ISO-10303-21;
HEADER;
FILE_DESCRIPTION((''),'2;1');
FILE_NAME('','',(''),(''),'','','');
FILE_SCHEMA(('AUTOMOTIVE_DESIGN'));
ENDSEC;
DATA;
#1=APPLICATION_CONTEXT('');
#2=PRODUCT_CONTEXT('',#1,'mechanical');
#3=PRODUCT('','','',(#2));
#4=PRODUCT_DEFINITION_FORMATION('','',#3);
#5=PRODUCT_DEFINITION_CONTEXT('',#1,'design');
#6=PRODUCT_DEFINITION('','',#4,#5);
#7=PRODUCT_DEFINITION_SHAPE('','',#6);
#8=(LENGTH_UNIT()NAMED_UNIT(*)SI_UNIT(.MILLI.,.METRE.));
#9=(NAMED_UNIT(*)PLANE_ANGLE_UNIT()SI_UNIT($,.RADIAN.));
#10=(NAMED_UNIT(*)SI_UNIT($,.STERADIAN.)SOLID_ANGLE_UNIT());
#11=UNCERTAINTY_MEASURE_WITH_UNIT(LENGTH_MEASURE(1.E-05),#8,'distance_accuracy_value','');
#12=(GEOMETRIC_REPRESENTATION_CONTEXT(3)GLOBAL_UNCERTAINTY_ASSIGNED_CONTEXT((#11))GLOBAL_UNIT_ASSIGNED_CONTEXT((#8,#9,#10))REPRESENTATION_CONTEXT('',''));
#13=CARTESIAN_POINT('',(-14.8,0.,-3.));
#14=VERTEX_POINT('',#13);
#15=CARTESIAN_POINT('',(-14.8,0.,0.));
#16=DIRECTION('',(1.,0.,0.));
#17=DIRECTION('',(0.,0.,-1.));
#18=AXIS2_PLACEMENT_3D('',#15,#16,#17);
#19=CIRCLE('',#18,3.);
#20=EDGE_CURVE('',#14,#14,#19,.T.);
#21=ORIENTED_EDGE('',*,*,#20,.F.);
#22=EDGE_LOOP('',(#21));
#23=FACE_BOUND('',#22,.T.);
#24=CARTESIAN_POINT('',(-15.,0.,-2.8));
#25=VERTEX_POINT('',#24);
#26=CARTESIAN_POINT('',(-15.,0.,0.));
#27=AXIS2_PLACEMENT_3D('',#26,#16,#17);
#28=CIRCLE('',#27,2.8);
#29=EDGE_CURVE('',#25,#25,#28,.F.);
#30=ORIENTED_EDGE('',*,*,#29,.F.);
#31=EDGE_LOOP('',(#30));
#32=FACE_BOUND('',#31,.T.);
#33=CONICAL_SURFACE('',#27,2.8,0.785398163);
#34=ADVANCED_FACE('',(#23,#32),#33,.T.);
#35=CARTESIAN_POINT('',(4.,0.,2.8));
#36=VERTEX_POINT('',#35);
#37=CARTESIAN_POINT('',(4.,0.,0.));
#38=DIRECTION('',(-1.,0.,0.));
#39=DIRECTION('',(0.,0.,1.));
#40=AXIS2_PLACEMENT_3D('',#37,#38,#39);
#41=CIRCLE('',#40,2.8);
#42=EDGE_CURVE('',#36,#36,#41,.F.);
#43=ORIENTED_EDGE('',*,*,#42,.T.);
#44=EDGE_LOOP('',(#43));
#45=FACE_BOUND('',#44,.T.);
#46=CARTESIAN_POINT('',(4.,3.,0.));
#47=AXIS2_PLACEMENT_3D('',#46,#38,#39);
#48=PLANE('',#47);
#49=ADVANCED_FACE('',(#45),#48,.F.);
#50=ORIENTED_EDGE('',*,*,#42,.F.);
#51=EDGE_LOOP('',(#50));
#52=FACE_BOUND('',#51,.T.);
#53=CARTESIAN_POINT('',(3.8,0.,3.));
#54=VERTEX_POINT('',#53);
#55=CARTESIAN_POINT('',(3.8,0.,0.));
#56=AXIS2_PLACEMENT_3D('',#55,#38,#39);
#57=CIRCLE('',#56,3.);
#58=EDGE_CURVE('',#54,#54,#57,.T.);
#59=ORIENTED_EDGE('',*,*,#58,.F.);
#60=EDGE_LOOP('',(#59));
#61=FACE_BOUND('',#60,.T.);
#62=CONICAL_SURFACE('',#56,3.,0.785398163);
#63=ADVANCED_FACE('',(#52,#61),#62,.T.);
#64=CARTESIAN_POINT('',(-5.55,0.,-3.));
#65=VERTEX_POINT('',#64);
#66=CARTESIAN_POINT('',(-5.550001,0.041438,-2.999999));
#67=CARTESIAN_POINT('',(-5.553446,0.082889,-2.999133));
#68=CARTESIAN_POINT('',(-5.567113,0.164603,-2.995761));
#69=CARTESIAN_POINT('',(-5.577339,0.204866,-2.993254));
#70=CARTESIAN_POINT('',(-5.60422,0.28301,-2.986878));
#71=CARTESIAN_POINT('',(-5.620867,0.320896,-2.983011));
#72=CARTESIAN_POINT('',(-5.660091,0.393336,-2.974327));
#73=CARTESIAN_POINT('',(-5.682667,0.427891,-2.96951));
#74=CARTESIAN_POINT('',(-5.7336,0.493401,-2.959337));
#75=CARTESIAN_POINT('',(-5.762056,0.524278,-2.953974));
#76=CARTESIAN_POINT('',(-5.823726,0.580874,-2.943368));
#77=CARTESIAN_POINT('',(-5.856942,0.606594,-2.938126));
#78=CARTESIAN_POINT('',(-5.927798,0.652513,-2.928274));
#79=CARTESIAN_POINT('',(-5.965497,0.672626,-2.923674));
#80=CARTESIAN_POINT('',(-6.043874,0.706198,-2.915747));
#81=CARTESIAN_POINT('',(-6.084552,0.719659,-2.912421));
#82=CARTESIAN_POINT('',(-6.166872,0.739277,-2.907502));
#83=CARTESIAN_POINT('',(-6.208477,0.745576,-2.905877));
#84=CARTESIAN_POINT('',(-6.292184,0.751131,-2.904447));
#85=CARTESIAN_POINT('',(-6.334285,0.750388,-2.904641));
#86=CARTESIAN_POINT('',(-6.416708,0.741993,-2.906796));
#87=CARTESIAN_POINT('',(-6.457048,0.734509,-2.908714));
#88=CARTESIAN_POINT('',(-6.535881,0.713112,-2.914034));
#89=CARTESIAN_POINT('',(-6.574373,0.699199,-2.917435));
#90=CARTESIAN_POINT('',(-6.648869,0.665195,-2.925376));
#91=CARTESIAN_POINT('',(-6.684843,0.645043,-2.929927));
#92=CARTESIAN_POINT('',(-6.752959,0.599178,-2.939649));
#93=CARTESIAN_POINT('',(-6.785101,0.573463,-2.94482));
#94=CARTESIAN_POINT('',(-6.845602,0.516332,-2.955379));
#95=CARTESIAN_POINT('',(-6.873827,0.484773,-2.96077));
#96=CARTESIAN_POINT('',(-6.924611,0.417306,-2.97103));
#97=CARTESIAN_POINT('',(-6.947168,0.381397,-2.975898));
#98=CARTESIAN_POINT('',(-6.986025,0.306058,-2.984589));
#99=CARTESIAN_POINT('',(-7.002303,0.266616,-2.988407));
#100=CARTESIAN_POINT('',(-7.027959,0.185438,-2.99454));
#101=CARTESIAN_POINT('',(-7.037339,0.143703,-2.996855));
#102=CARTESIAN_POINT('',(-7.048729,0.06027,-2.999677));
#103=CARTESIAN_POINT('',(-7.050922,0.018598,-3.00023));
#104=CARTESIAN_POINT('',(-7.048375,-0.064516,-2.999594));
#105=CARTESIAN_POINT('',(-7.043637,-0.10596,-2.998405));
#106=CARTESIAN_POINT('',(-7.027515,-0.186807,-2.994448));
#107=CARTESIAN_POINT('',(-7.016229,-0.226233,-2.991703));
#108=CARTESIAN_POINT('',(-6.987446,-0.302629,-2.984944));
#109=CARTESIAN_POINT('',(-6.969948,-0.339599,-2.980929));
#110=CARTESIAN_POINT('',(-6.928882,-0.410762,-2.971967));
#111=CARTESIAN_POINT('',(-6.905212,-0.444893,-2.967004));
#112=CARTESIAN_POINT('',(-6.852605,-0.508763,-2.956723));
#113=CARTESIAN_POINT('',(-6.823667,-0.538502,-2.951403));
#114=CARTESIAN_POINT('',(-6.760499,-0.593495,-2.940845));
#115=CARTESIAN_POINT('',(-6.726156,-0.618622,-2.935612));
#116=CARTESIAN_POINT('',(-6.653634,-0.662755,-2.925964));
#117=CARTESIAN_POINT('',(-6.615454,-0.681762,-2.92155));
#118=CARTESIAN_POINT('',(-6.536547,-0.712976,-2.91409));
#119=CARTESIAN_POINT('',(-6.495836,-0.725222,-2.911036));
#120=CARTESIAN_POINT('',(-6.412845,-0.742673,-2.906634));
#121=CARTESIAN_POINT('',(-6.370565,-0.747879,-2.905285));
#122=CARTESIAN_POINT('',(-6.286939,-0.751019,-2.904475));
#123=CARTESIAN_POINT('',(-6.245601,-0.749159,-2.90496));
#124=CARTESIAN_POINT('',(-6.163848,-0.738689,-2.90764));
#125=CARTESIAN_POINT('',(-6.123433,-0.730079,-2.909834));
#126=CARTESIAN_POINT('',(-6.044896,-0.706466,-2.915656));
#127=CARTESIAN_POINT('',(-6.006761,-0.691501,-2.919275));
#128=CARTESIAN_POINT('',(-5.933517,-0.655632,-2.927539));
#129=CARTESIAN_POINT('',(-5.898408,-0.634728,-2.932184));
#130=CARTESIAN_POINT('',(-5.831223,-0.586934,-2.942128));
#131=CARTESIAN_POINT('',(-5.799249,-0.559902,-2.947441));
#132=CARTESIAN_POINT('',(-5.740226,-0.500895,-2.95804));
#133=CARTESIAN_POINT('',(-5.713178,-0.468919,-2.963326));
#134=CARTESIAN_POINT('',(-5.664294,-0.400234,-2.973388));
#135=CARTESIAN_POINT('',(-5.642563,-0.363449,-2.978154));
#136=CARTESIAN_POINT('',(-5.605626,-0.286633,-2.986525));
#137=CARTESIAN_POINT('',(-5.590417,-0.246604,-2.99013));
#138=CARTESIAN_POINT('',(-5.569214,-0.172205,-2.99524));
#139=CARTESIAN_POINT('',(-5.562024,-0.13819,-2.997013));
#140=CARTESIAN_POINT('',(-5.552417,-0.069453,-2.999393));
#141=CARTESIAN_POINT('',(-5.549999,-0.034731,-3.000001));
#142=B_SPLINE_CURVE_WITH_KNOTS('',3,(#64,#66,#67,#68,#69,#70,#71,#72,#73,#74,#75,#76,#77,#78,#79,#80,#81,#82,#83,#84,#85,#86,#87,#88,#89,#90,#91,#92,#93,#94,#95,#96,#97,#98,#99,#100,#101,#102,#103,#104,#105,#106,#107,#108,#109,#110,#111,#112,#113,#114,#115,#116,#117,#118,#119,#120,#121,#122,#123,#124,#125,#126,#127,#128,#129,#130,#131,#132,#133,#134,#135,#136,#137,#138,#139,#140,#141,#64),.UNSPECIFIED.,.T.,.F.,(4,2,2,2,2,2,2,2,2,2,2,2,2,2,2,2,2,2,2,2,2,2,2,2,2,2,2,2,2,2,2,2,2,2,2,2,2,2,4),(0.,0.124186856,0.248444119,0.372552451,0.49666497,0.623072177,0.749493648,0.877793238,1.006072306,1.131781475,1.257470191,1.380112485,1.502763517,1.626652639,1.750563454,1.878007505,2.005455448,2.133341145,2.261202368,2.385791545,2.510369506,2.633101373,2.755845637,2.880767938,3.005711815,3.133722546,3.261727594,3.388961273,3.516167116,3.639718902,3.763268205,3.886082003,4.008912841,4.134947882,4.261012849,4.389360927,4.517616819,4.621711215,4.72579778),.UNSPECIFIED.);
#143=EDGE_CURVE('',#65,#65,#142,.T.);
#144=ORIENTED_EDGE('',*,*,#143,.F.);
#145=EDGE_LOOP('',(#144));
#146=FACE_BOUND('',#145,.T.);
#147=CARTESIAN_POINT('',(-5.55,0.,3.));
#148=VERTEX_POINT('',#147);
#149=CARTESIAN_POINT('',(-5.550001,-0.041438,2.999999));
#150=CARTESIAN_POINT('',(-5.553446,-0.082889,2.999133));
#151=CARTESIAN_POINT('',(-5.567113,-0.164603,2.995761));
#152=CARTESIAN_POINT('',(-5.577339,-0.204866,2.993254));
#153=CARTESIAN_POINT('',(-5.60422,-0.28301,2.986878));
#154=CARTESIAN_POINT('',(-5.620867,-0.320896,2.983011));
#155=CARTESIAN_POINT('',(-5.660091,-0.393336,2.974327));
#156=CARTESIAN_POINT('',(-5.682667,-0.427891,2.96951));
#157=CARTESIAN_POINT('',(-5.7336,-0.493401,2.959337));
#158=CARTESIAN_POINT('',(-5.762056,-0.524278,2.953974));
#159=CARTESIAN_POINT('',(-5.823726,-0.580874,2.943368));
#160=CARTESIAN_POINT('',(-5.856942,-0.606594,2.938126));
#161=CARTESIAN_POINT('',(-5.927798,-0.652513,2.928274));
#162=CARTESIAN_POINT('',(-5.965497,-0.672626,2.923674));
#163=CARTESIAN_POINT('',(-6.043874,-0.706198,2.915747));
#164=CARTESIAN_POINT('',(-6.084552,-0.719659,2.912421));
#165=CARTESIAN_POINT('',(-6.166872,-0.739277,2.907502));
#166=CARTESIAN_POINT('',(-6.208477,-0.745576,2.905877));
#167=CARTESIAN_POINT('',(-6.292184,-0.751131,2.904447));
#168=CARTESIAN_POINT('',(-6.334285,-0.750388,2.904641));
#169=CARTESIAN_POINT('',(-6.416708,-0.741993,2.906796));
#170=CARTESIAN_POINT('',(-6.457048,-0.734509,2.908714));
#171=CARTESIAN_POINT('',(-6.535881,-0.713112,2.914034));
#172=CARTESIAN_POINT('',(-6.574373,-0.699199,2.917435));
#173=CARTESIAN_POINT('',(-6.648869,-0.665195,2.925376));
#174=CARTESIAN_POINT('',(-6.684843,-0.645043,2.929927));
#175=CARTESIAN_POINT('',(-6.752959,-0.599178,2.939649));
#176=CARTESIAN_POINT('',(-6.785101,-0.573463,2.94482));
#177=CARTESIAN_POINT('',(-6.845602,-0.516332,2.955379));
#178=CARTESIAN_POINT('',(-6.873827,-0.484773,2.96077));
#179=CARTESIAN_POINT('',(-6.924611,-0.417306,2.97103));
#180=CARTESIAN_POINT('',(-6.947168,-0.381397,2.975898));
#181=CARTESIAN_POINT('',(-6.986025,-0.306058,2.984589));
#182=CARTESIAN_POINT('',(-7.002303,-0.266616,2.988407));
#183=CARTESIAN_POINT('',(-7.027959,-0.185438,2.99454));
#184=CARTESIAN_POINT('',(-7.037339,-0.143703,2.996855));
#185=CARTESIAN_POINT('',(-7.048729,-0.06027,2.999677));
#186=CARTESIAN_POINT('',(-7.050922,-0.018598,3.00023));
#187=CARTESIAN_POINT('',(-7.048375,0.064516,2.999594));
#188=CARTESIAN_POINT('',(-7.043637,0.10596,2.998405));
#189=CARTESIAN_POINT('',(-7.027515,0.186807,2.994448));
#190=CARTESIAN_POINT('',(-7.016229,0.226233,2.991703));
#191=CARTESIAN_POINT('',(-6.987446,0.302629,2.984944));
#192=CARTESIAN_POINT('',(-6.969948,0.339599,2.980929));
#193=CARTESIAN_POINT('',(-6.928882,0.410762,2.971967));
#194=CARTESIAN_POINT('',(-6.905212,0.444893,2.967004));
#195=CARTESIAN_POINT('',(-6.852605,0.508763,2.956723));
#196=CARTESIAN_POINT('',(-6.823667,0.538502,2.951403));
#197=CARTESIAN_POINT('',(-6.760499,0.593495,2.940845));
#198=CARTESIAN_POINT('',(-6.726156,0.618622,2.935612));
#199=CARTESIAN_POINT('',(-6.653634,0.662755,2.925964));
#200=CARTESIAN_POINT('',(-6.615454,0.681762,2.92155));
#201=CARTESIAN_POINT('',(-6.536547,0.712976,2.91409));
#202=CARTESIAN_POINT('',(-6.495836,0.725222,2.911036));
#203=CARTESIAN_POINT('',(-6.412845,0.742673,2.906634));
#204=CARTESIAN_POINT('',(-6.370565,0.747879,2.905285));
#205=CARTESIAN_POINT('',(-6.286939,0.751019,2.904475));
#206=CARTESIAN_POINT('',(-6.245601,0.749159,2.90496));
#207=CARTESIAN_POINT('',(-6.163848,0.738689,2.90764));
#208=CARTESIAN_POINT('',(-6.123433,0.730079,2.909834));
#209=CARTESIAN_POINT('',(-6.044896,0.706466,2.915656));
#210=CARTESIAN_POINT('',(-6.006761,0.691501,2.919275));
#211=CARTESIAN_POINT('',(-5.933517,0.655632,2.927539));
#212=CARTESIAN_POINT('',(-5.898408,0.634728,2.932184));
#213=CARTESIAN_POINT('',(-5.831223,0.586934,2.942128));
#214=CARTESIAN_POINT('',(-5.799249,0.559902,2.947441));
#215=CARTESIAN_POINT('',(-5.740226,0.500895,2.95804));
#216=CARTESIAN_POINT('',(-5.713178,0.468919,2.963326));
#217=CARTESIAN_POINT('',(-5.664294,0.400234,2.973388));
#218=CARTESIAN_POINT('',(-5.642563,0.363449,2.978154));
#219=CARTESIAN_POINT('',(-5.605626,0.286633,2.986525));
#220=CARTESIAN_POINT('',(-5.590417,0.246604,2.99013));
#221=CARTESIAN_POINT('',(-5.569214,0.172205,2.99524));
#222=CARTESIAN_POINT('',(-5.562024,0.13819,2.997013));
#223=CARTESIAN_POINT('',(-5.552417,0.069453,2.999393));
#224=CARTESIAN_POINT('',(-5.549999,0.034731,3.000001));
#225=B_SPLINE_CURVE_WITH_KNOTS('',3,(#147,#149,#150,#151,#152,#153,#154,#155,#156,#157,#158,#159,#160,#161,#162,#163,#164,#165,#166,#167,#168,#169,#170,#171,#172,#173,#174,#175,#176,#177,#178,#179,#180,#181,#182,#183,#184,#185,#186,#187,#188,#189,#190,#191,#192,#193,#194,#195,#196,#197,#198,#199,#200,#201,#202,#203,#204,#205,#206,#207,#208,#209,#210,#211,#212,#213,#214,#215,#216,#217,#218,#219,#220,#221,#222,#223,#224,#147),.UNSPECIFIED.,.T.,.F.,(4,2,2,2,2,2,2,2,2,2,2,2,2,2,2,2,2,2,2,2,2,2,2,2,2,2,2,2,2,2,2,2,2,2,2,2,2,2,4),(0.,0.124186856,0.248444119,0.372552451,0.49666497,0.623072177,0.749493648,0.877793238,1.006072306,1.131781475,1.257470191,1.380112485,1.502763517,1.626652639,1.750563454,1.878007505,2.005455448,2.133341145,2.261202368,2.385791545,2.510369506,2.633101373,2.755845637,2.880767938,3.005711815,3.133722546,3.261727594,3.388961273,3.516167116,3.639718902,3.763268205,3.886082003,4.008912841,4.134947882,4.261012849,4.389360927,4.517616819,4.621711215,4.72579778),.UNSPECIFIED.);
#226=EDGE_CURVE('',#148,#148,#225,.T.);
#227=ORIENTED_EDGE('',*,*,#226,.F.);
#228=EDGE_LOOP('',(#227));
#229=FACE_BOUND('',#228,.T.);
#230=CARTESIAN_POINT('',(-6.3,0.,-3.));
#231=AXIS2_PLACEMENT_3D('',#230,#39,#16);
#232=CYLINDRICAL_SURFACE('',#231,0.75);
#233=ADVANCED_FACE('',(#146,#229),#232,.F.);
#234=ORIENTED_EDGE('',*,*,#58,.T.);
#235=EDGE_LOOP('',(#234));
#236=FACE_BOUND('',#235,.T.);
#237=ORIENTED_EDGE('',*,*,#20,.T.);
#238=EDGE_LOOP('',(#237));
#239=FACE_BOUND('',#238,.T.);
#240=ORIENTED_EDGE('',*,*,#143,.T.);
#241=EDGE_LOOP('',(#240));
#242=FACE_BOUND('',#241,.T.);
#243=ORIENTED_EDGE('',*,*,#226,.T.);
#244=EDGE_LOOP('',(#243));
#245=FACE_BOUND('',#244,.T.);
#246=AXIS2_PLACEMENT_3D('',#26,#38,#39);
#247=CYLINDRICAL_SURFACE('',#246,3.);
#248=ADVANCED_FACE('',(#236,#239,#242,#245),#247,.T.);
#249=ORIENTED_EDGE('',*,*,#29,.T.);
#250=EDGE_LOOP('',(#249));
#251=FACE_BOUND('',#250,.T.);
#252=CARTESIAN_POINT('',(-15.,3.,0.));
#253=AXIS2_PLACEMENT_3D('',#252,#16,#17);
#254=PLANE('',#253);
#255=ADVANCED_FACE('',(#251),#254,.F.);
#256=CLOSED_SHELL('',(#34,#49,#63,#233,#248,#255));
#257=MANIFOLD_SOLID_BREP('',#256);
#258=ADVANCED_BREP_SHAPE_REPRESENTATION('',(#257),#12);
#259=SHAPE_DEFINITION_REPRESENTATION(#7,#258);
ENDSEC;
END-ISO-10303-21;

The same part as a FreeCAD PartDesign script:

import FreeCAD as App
import Part
import Sketcher
from FreeCAD import Vector


def edges_at(feature, points):
    """Names of the edges that pass closest to the given points."""
    edges = feature.Shape.Edges
    near = lambda p: min(range(len(edges)), key=lambda i: edges[i].distToShape(Part.Vertex(*p))[0])
    return sorted({f"Edge{near(p) + 1}" for p in points})


def add_polygon(sketch, points):
    """Adds a closed chain of lines whose ends are joined by coincident constraints."""
    first, n = sketch.GeometryCount, len(points)
    for a, b in zip(points, points[1:] + points[:1]):
        sketch.addGeometry(Part.LineSegment(App.Vector(*a, 0), App.Vector(*b, 0)), False)
    for i in range(n):
        sketch.addConstraint(Sketcher.Constraint("Coincident", first + i, 2, first + (i + 1) % n, 1))

doc = App.newDocument("Part")
params = doc.addObject("Spreadsheet::Sheet", "Params")
for row, (alias, value) in enumerate([
    ("sketch1_width", "19 mm"),
    ("sketch1_height", "3 mm"),
    ("revolution_angle", "360 deg"),
    ("chamfer_size", "0.2 mm"),
    ("sketch2_diameter", "1.5 mm"),
], start=1):
    params.set(f"A{row}", alias)
    params.set(f"B{row}", "=" + value)
    params.setAlias(f"B{row}", alias)

body = doc.addObject("PartDesign::Body", "Body")

# Sketch on XY plane
sketch1 = body.newObject("Sketcher::SketchObject", "Sketch")
sketch1.AttachmentSupport = (doc.getObject("XY_Plane"), [""])
sketch1.MapMode = "FlatFace"
add_polygon(sketch1, [(-15, 3), (-15, 0), (4, 0), (4, 3)])  # lines 0-3
sketch1.addConstraint(Sketcher.Constraint("Vertical", 0))
sketch1.addConstraint(Sketcher.Constraint("Horizontal", 1))
sketch1.addConstraint(Sketcher.Constraint("Vertical", 2))
sketch1.addConstraint(Sketcher.Constraint("Horizontal", 3))
sketch1.addConstraint(Sketcher.Constraint("PointOnObject", 0, 2, -1))
sketch1.addConstraint(Sketcher.Constraint("DistanceX", 1, 1, 1, 2, 19.0))
sketch1.addConstraint(Sketcher.Constraint("DistanceY", 0, 2, 0, 1, 3.0))
sketch1.addConstraint(Sketcher.Constraint("DistanceX", 0, 2, -1, 1, 15.0))
sketch1.setExpression("Constraints[9]", "Params.sketch1_width")
sketch1.setExpression("Constraints[10]", "Params.sketch1_height")
revolution = body.newObject("PartDesign::Revolution", "Revolution")
revolution.Profile = sketch1
revolution.ReferenceAxis = (sketch1, ["H_Axis"])
revolution.setExpression("Angle", "Params.revolution_angle")
doc.recompute()

chamfer = body.newObject("PartDesign::Chamfer", "Chamfer")
chamfer.Base = (revolution, edges_at(revolution, [(-15, -3, 0), (4, -3, 0)]))
chamfer.setExpression("Size", "Params.chamfer_size")

# Sketch on XY plane
sketch2 = body.newObject("Sketcher::SketchObject", "Sketch001")
sketch2.AttachmentSupport = (doc.getObject("XY_Plane"), [""])
sketch2.MapMode = "FlatFace"
sketch2.addGeometry(Part.Circle(Vector(-6.3, 0, 0), Vector(0, 0, 1), 0.8), False)
sketch2.addConstraint(Sketcher.Constraint("PointOnObject", 0, 3, -1))
sketch2.addConstraint(Sketcher.Constraint("Diameter", 0, 1.5))
sketch2.addConstraint(Sketcher.Constraint("DistanceX", 0, 3, -1, 1, 6.3))
sketch2.setExpression("Constraints[1]", "Params.sketch2_diameter")
pocket1 = body.newObject("PartDesign::Pocket", "Pocket")
pocket1.Profile = sketch2
pocket1.Type = "ThroughAll"
pocket1.Midplane = True

doc.recompute()
